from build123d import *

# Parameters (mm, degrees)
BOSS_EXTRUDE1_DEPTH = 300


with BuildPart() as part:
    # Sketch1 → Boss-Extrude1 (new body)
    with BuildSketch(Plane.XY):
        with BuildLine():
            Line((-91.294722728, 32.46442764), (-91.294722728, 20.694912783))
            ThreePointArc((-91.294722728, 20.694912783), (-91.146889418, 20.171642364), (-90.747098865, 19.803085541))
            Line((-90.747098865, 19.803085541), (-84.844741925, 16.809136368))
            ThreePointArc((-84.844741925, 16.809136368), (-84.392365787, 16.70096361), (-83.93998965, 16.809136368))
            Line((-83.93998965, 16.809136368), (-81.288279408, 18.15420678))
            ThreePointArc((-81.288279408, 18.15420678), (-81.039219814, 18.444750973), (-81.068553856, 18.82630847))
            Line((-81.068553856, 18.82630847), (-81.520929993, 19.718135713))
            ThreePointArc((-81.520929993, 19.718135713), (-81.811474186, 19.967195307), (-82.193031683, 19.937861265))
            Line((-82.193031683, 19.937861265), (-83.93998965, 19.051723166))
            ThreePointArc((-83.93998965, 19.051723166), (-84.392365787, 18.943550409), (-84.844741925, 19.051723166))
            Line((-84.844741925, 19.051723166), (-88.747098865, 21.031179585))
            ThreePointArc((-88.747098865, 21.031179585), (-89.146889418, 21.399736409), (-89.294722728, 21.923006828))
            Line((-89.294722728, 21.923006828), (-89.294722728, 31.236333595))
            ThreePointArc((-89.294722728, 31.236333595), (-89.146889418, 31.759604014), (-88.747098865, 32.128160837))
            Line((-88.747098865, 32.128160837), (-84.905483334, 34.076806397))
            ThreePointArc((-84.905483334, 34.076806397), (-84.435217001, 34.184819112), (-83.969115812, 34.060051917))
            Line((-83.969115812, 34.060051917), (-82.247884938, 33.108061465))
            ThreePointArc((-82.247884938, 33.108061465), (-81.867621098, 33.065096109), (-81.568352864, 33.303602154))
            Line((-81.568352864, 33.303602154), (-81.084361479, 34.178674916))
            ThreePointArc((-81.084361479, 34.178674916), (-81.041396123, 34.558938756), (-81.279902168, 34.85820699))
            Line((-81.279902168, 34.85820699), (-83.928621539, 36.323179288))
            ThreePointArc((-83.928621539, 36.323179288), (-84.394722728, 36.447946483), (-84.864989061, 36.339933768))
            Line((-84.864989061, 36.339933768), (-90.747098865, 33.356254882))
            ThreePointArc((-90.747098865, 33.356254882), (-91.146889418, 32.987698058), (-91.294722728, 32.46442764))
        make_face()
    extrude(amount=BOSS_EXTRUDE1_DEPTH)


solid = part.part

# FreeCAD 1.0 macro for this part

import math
import FreeCAD as App
import Part
import Sketcher

V = App.Vector
Q = App.Units.Quantity

doc = App.newDocument("Part")
params = doc.addObject("Spreadsheet::Sheet", "Params")
for row, (alias, value) in enumerate([
    ("sketch1_radius", "1 mm"),
    ("sketch1_radius2", "0.5 mm"),
    ("sketch1_length", "1 mm"),
    ("pad1_length", "300 mm"),
], start=1):
    params.set(f"A{row}", alias)
    params.set(f"B{row}", "=" + value)
    params.setAlias(f"B{row}", alias)

body = doc.addObject("PartDesign::Body", "Body")

# Sketch on XY plane
sketch1 = doc.addObject("Sketcher::SketchObject", "Sketch")
body.addObject(sketch1)
sketch1.AttachmentSupport = (doc.XY_Plane, [""])
sketch1.MapMode = "FlatFace"
sketch1.addGeometry([
    Part.LineSegment(V(-91.294723, 32.464428, 0), V(-91.294723, 20.694913, 0)),  # 0
    Part.ArcOfCircle(Part.Circle(V(-90.294723, 20.694913, 0), V(0, 0, 1), 1), math.radians(-180), math.radians(-116.896237)),  # 1
    Part.LineSegment(V(-90.747099, 19.803086, 0), V(-84.844742, 16.809136, 0)),  # 2
    Part.ArcOfCircle(Part.Circle(V(-84.392366, 17.700964, 0), V(0, 0, 1), 1), math.radians(-116.896237), math.radians(-63.103763)),  # 3
    Part.LineSegment(V(-83.93999, 16.809136, 0), V(-81.288279, 18.154207, 0)),  # 4
    Part.ArcOfCircle(Part.Circle(V(-81.514467, 18.60012, 0), V(0, 0, 1), 0.5), math.radians(-63.103763), math.radians(26.896237)),  # 5
    Part.LineSegment(V(-81.068554, 18.826308, 0), V(-81.52093, 19.718136, 0)),  # 6
    Part.ArcOfCircle(Part.Circle(V(-81.966844, 19.491948, 0), V(0, 0, 1), 0.5), math.radians(26.896237), math.radians(116.896237)),  # 7
    Part.LineSegment(V(-82.193032, 19.937861, 0), V(-83.93999, 19.051723, 0)),  # 8
    Part.ArcOfCircle(Part.Circle(V(-84.392366, 19.94355, 0), V(0, 0, 1), 1), math.radians(-116.896237), math.radians(-63.103763)),  # 9
    Part.LineSegment(V(-84.844742, 19.051723, 0), V(-88.747099, 21.03118, 0)),  # 10
    Part.ArcOfCircle(Part.Circle(V(-88.294723, 21.923007, 0), V(0, 0, 1), 1), math.radians(-180), math.radians(-116.896237)),  # 11
    Part.LineSegment(V(-89.294723, 21.923007, 0), V(-89.294723, 31.236334, 0)),  # 12
    Part.ArcOfCircle(Part.Circle(V(-88.294723, 31.236334, 0), V(0, 0, 1), 1), math.radians(116.896237), math.radians(180)),  # 13
    Part.LineSegment(V(-88.747099, 32.128161, 0), V(-84.905483, 34.076806, 0)),  # 14
    Part.ArcOfCircle(Part.Circle(V(-84.453107, 33.184979, 0), V(0, 0, 1), 1), math.radians(61.053588), math.radians(116.896237)),  # 15
    Part.LineSegment(V(-83.969116, 34.060052, 0), V(-82.247885, 33.108061, 0)),  # 16
    Part.ArcOfCircle(Part.Circle(V(-82.005889, 33.545598, 0), V(0, 0, 1), 0.5), math.radians(-118.946412), math.radians(-28.946412)),  # 17
    Part.LineSegment(V(-81.568353, 33.303602, 0), V(-81.084361, 34.178675, 0)),  # 18
    Part.ArcOfCircle(Part.Circle(V(-81.521898, 34.420671, 0), V(0, 0, 1), 0.5), math.radians(-28.946412), math.radians(61.053588)),  # 19
    Part.LineSegment(V(-81.279902, 34.858207, 0), V(-83.928622, 36.323179, 0)),  # 20
    Part.ArcOfCircle(Part.Circle(V(-84.412613, 35.448107, 0), V(0, 0, 1), 1), math.radians(61.053588), math.radians(116.896237)),  # 21
    Part.LineSegment(V(-84.864989, 36.339934, 0), V(-90.747099, 33.356255, 0)),  # 22
    Part.ArcOfCircle(Part.Circle(V(-90.294723, 32.464428, 0), V(0, 0, 1), 1), math.radians(116.896237), math.radians(180)),  # 23
], False)
sketch1.addConstraint([
    Sketcher.Constraint("Tangent", 0, 2, 1, 1),
    Sketcher.Constraint("Tangent", 1, 2, 2, 1),
    Sketcher.Constraint("Tangent", 2, 2, 3, 1),
    Sketcher.Constraint("Tangent", 3, 2, 4, 1),
    Sketcher.Constraint("Tangent", 4, 2, 5, 1),
    Sketcher.Constraint("Tangent", 5, 2, 6, 1),
    Sketcher.Constraint("Tangent", 6, 2, 7, 1),
    Sketcher.Constraint("Tangent", 7, 2, 8, 1),
    Sketcher.Constraint("Tangent", 8, 2, 9, 2),
    Sketcher.Constraint("Tangent", 9, 1, 10, 1),
    Sketcher.Constraint("Tangent", 10, 2, 11, 2),
    Sketcher.Constraint("Tangent", 11, 1, 12, 1),
    Sketcher.Constraint("Tangent", 12, 2, 13, 2),
    Sketcher.Constraint("Tangent", 13, 1, 14, 1),
    Sketcher.Constraint("Tangent", 14, 2, 15, 2),
    Sketcher.Constraint("Tangent", 15, 1, 16, 1),
    Sketcher.Constraint("Tangent", 16, 2, 17, 1),
    Sketcher.Constraint("Tangent", 17, 2, 18, 1),
    Sketcher.Constraint("Tangent", 18, 2, 19, 1),
    Sketcher.Constraint("Tangent", 19, 2, 20, 1),
    Sketcher.Constraint("Tangent", 20, 2, 21, 1),
    Sketcher.Constraint("Tangent", 21, 2, 22, 1),
    Sketcher.Constraint("Tangent", 22, 2, 23, 1),
    Sketcher.Constraint("Tangent", 23, 2, 0, 1),
    Sketcher.Constraint("Vertical", 0),
    Sketcher.Constraint("Vertical", 12),
    Sketcher.Constraint("Equal", 1, 3),
    Sketcher.Constraint("Equal", 5, 7),
    Sketcher.Constraint("Equal", 3, 9),
    Sketcher.Constraint("Equal", 9, 11),
    Sketcher.Constraint("Equal", 11, 13),
    Sketcher.Constraint("Equal", 13, 15),
    Sketcher.Constraint("Equal", 7, 17),
    Sketcher.Constraint("Equal", 17, 19),
    Sketcher.Constraint("Equal", 15, 21),
    Sketcher.Constraint("Equal", 21, 23),
    Sketcher.Constraint("Perpendicular", 4, 6),
    Sketcher.Constraint("Perpendicular", 6, 8),
    Sketcher.Constraint("Parallel", 2, 10),
    Sketcher.Constraint("Parallel", 8, 14),
    Sketcher.Constraint("Perpendicular", 16, 18),
    Sketcher.Constraint("Perpendicular", 18, 20),
    Sketcher.Constraint("Parallel", 14, 22),
    Sketcher.Constraint("Horizontal", 2, 2, 3, 2),
    Sketcher.Constraint("Vertical", 3, 3, 9, 3),
    Sketcher.Constraint("Equal", 6, 18),
    Sketcher.Constraint("Radius", 1, Q("1 mm")),
    Sketcher.Constraint("Radius", 5, Q("0.5 mm")),
    Sketcher.Constraint("Distance", 6, Q("1 mm")),
    Sketcher.Constraint("DistanceX", 1, 3, 11, 3, Q("2 mm")),
    Sketcher.Constraint("DistanceX", 1, 2, -1, 1, Q("90.747099 mm")),
    Sketcher.Constraint("DistanceX", 3, 3, 5, 3, Q("2.877898 mm")),
    Sketcher.Constraint("DistanceY", 11, 3, 21, 3, Q("13.5251 mm")),
    Sketcher.Constraint("DistanceY", 4, 2, 5, 2, Q("0.672102 mm")),
    Sketcher.Constraint("DistanceY", 14, 2, 21, 3, Q("1.3713 mm")),
    Sketcher.Constraint("DistanceX", 14, 2, 16, 2, Q("2.657598 mm")),
    Sketcher.Constraint("Distance", 14, Q("4.307578 mm")),
    Sketcher.Constraint("Distance", 22, Q("6.595571 mm")),
    Sketcher.Constraint("DistanceY", -1, 1, 5, 3, Q("18.60012 mm")),
    Sketcher.Constraint("DistanceY", -1, 1, 15, 3, Q("33.184979 mm")),
])
sketch1.setExpression("Constraints[46]", "Params.sketch1_radius")
sketch1.setExpression("Constraints[47]", "Params.sketch1_radius2")
sketch1.setExpression("Constraints[48]", "Params.sketch1_length")
pad1 = doc.addObject("PartDesign::Pad", "Pad")
body.addObject(pad1)
pad1.Profile = sketch1
pad1.setExpression("Length", "Params.pad1_length")

doc.recompute()
